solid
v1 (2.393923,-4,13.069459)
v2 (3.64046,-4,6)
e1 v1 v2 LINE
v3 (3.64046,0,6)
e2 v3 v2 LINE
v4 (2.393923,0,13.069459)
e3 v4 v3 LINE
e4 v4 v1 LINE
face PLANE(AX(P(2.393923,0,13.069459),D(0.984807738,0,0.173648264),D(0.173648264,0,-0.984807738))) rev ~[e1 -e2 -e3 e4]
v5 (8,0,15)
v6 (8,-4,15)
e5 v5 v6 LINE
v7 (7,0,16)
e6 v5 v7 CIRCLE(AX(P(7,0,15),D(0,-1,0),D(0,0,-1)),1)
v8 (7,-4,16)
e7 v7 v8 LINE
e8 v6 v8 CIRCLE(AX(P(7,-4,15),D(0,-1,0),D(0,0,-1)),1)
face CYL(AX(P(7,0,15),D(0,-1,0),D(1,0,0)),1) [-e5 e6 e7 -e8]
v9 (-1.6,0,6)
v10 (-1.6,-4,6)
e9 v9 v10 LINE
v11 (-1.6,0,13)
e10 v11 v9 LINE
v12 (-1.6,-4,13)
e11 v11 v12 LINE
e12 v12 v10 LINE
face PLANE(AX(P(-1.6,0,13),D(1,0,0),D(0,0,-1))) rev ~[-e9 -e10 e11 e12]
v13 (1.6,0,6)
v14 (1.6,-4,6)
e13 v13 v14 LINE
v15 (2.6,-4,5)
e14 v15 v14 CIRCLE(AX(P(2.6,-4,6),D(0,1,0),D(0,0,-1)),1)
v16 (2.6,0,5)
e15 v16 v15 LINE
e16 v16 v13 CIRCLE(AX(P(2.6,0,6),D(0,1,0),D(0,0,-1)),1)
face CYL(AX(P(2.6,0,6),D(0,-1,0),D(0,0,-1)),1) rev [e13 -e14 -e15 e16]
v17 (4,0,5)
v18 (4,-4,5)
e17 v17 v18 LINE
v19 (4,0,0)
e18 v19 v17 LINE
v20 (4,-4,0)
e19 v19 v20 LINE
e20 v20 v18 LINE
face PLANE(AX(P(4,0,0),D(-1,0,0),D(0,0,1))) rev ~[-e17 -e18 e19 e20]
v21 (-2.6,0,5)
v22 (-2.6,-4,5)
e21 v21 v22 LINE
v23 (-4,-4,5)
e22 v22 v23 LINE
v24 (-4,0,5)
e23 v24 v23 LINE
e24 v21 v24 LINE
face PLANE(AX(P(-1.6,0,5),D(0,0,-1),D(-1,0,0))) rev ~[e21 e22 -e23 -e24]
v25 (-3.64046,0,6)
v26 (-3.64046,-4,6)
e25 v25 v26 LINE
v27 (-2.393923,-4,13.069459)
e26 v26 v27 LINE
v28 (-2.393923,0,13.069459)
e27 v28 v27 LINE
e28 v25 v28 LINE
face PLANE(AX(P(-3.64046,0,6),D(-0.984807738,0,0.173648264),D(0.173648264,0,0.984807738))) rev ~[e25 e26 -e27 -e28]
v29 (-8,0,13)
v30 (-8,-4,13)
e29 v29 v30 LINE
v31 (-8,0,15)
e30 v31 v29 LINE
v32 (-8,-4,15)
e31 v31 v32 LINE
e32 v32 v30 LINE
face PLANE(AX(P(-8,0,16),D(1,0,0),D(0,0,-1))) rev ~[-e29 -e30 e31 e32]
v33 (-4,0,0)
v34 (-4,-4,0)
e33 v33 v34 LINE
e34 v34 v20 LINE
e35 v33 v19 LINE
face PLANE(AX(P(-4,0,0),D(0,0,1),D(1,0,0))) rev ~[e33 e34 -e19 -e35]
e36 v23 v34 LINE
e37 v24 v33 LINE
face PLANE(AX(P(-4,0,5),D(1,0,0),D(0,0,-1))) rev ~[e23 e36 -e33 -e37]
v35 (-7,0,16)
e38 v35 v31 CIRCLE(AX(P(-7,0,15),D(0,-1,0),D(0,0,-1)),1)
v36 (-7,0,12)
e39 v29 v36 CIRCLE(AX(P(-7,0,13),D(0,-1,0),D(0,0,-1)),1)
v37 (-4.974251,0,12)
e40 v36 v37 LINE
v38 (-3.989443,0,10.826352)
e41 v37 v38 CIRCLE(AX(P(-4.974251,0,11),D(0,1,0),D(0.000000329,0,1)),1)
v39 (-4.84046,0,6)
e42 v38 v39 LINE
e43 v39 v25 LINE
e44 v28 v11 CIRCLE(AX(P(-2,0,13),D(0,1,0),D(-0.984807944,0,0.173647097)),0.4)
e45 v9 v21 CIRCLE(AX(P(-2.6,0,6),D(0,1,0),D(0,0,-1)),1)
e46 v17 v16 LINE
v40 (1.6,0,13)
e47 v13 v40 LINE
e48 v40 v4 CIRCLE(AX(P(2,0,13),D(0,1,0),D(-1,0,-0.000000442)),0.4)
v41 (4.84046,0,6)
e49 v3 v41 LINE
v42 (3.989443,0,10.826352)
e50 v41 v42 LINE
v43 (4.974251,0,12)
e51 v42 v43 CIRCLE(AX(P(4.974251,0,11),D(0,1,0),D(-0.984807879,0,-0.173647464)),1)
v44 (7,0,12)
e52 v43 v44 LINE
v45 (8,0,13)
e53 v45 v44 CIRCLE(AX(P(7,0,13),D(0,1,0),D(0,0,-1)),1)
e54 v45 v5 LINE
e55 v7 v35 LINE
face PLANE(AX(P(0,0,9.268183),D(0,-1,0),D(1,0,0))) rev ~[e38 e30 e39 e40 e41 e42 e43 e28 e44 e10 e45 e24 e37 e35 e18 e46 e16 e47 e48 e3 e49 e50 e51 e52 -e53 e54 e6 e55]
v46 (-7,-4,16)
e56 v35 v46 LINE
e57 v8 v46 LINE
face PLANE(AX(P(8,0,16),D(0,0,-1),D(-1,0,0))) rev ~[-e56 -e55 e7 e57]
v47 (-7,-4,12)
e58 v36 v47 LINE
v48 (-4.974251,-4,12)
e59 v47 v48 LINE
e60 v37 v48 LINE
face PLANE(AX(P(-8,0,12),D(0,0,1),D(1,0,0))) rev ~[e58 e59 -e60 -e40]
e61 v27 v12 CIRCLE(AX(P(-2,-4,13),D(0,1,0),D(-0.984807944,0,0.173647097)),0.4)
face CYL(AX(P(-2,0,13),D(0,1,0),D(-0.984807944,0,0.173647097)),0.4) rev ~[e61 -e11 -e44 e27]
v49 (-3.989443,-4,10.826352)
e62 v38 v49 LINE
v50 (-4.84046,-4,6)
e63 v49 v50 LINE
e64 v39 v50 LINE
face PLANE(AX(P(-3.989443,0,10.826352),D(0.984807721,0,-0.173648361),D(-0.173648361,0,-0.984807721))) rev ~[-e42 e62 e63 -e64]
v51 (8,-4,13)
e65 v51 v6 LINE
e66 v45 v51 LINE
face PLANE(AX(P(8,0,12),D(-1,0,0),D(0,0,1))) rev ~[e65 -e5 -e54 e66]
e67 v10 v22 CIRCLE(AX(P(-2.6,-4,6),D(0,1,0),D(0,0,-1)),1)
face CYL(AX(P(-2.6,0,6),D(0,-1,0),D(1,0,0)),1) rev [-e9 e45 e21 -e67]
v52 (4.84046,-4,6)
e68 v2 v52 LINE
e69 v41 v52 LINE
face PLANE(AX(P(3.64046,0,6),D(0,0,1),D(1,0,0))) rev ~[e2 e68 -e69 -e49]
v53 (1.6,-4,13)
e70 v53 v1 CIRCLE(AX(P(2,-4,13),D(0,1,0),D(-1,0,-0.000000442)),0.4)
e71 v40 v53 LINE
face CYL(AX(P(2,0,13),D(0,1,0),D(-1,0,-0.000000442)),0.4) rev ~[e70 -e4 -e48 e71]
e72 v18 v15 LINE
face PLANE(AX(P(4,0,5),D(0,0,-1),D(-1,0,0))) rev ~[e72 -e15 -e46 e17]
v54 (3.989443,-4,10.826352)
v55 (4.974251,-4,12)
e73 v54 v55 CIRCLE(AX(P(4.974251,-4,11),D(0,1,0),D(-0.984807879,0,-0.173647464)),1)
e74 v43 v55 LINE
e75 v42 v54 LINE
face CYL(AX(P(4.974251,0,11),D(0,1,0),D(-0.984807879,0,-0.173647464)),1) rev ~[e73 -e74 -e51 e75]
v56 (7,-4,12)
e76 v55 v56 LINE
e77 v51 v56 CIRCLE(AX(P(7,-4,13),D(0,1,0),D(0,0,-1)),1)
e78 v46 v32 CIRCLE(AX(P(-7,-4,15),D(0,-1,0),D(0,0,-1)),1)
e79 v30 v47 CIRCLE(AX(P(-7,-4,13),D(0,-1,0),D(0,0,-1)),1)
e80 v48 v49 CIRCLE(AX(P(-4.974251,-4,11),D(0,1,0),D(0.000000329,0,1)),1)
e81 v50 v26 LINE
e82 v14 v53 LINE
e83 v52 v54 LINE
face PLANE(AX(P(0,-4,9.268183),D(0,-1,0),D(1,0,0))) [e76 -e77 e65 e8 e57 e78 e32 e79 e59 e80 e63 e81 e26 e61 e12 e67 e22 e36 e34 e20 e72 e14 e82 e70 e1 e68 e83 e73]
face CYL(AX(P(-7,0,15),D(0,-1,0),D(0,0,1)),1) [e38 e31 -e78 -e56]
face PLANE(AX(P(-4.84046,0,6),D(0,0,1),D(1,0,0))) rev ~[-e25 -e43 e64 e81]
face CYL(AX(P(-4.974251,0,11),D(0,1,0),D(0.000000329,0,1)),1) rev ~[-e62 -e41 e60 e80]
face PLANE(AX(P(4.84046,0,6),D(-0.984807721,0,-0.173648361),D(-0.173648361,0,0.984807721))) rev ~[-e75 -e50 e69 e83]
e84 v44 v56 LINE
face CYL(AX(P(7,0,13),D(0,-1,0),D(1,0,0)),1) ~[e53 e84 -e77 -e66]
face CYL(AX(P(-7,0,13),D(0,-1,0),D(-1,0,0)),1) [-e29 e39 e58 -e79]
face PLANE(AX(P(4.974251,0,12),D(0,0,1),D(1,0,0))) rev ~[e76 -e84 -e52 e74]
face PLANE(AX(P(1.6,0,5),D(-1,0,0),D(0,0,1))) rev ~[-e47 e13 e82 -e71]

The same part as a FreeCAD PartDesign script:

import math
import FreeCAD as App
import Part
import Sketcher
Q = App.Units.Quantity


def edges_at(feature, points):
    """Names of the edges that pass closest to the given points."""
    edges = feature.Shape.Edges
    near = lambda p: min(range(len(edges)), key=lambda i: edges[i].distToShape(Part.Vertex(*p))[0])
    return sorted({f"Edge{near(p) + 1}" for p in points})

doc = App.newDocument("Part")
body = doc.addObject("PartDesign::Body", "Body")

sketch1 = body.newObject("Sketcher::SketchObject", "Sketch")
sketch1.AttachmentSupport = (doc.getObject("XZ_Plane"), [""])
sketch1.MapMode = "FlatFace"
sketch1.addGeometry(Part.LineSegment(App.Vector(8, 12, 0), App.Vector(8, 16, 0)), False)
sketch1.addGeometry(Part.LineSegment(App.Vector(8, 16, 0), App.Vector(-8, 16, 0)), False)
sketch1.addGeometry(Part.LineSegment(App.Vector(-8, 16, 0), App.Vector(-8, 12, 0)), False)
sketch1.addGeometry(Part.LineSegment(App.Vector(-8, 12, 0), App.Vector(-4.97, 12, 0)), False)
sketch1.addGeometry(Part.ArcOfCircle(Part.Circle(App.Vector(-4.97, 11, 0), App.Vector(0, 0, 1), 1), math.radians(-10), math.radians(90)), False)
sketch1.addGeometry(Part.LineSegment(App.Vector(-3.99, 10.83, 0), App.Vector(-4.84, 6, 0)), False)
sketch1.addGeometry(Part.LineSegment(App.Vector(-4.84, 6, 0), App.Vector(-3.64, 6, 0)), False)
sketch1.addGeometry(Part.LineSegment(App.Vector(-3.64, 6, 0), App.Vector(-2.39, 13.07, 0)), False)
sketch1.addGeometry(Part.ArcOfCircle(Part.Circle(App.Vector(-2, 13, 0), App.Vector(0, 0, 1), 0.4), math.radians(0), math.radians(170)), False)
sketch1.addGeometry(Part.LineSegment(App.Vector(-1.6, 13, 0), App.Vector(-1.6, 5, 0)), False)
sketch1.addGeometry(Part.LineSegment(App.Vector(-1.6, 5, 0), App.Vector(-4, 5, 0)), False)
sketch1.addGeometry(Part.LineSegment(App.Vector(-4, 5, 0), App.Vector(-4, 0, 0)), False)
sketch1.addGeometry(Part.LineSegment(App.Vector(-4, 0, 0), App.Vector(4, 0, 0)), False)
sketch1.addGeometry(Part.LineSegment(App.Vector(4, 0, 0), App.Vector(4, 5, 0)), False)
sketch1.addGeometry(Part.LineSegment(App.Vector(4, 5, 0), App.Vector(1.6, 5, 0)), False)
sketch1.addGeometry(Part.LineSegment(App.Vector(1.6, 5, 0), App.Vector(1.6, 13, 0)), False)
sketch1.addGeometry(Part.ArcOfCircle(Part.Circle(App.Vector(2, 13, 0), App.Vector(0, 0, 1), 0.4), math.radians(10), math.radians(180)), False)
sketch1.addGeometry(Part.LineSegment(App.Vector(2.39, 13.07, 0), App.Vector(3.64, 6, 0)), False)
sketch1.addGeometry(Part.LineSegment(App.Vector(3.64, 6, 0), App.Vector(4.84, 6, 0)), False)
sketch1.addGeometry(Part.LineSegment(App.Vector(4.84, 6, 0), App.Vector(3.99, 10.83, 0)), False)
sketch1.addGeometry(Part.ArcOfCircle(Part.Circle(App.Vector(4.97, 11, 0), App.Vector(0, 0, 1), 1), math.radians(90), math.radians(190)), False)
sketch1.addGeometry(Part.LineSegment(App.Vector(4.97, 12, 0), App.Vector(8, 12, 0)), False)
sketch1.addConstraint(Sketcher.Constraint("Coincident", 0, 2, 1, 1))
sketch1.addConstraint(Sketcher.Constraint("Coincident", 1, 2, 2, 1))
sketch1.addConstraint(Sketcher.Constraint("Coincident", 2, 2, 3, 1))
sketch1.addConstraint(Sketcher.Constraint("Tangent", 3, 2, 4, 2))
sketch1.addConstraint(Sketcher.Constraint("Tangent", 4, 1, 5, 1))
sketch1.addConstraint(Sketcher.Constraint("Coincident", 5, 2, 6, 1))
sketch1.addConstraint(Sketcher.Constraint("Coincident", 6, 2, 7, 1))
sketch1.addConstraint(Sketcher.Constraint("Tangent", 7, 2, 8, 2))
sketch1.addConstraint(Sketcher.Constraint("Tangent", 8, 1, 9, 1))
sketch1.addConstraint(Sketcher.Constraint("Coincident", 9, 2, 10, 1))
sketch1.addConstraint(Sketcher.Constraint("Coincident", 10, 2, 11, 1))
sketch1.addConstraint(Sketcher.Constraint("Coincident", 11, 2, 12, 1))
sketch1.addConstraint(Sketcher.Constraint("Coincident", 12, 2, 13, 1))
sketch1.addConstraint(Sketcher.Constraint("Coincident", 13, 2, 14, 1))
sketch1.addConstraint(Sketcher.Constraint("Coincident", 14, 2, 15, 1))
sketch1.addConstraint(Sketcher.Constraint("Tangent", 15, 2, 16, 2))
sketch1.addConstraint(Sketcher.Constraint("Tangent", 16, 1, 17, 1))
sketch1.addConstraint(Sketcher.Constraint("Coincident", 17, 2, 18, 1))
sketch1.addConstraint(Sketcher.Constraint("Coincident", 18, 2, 19, 1))
sketch1.addConstraint(Sketcher.Constraint("Tangent", 19, 2, 20, 2))
sketch1.addConstraint(Sketcher.Constraint("Tangent", 20, 1, 21, 1))
sketch1.addConstraint(Sketcher.Constraint("Coincident", 21, 2, 0, 1))
sketch1.addConstraint(Sketcher.Constraint("Vertical", 0))
sketch1.addConstraint(Sketcher.Constraint("Horizontal", 1))
sketch1.addConstraint(Sketcher.Constraint("Vertical", 2))
sketch1.addConstraint(Sketcher.Constraint("Horizontal", 3))
sketch1.addConstraint(Sketcher.Constraint("Horizontal", 6))
sketch1.addConstraint(Sketcher.Constraint("Vertical", 9))
sketch1.addConstraint(Sketcher.Constraint("Horizontal", 10))
sketch1.addConstraint(Sketcher.Constraint("Vertical", 11))
sketch1.addConstraint(Sketcher.Constraint("Horizontal", 12))
sketch1.addConstraint(Sketcher.Constraint("Vertical", 13))
sketch1.addConstraint(Sketcher.Constraint("Horizontal", 14))
sketch1.addConstraint(Sketcher.Constraint("Vertical", 15))
sketch1.addConstraint(Sketcher.Constraint("Horizontal", 18))
sketch1.addConstraint(Sketcher.Constraint("Horizontal", 21))
sketch1.addConstraint(Sketcher.Constraint("Equal", 8, 16))
sketch1.addConstraint(Sketcher.Constraint("Equal", 4, 20))
sketch1.addConstraint(Sketcher.Constraint("Symmetric", 11, 2, 12, 2, -1, 1))
sketch1.addConstraint(Sketcher.Constraint("Symmetric", 8, 3, 16, 3, -2))
sketch1.addConstraint(Sketcher.Constraint("Symmetric", 4, 3, 20, 3, -2))
sketch1.addConstraint(Sketcher.Constraint("Symmetric", 6, 2, 17, 2, -2))
sketch1.addConstraint(Sketcher.Constraint("Parallel", 5, 7))
sketch1.addConstraint(Sketcher.Constraint("Parallel", 17, 19))
sketch1.addConstraint(Sketcher.Constraint("Horizontal", 10, 2, 13, 2))
sketch1.addConstraint(Sketcher.Constraint("Equal", 3, 21))
sketch1.addConstraint(Sketcher.Constraint("Equal", 12, 9))
sketch1.addConstraint(Sketcher.Constraint("Radius", 4, 1.0))
sketch1.addConstraint(Sketcher.Constraint("Radius", 8, 0.4))
sketch1.addConstraint(Sketcher.Constraint("DistanceX", 1, 2, 1, 1, 16.0))
sketch1.addConstraint(Sketcher.Constraint("DistanceX", 12, 1, 12, 2, 8.0))
sketch1.addConstraint(Sketcher.Constraint("DistanceY", 0, 1, 0, 2, 4.0))
sketch1.addConstraint(Sketcher.Constraint("DistanceY", 11, 2, 11, 1, 5.0))
sketch1.addConstraint(Sketcher.Constraint("Angle", 5, Q("-100.000011 deg")))
sketch1.addConstraint(Sketcher.Constraint("DistanceX", 6, 1, 6, 2, 1.2))
sketch1.addConstraint(Sketcher.Constraint("DistanceX", 10, 2, 10, 1, 2.4))
sketch1.addConstraint(Sketcher.Constraint("DistanceY", -1, 1, 4, 3, 11.0))
sketch1.addConstraint(Sketcher.Constraint("DistanceY", -1, 1, 5, 2, 6.0))
pad1 = body.newObject("PartDesign::Pad", "Pad")
pad1.Profile = sketch1
pad1.Length = 4
doc.recompute()

fillet = body.newObject("PartDesign::Fillet", "Fillet")
fillet.Base = (pad1, edges_at(pad1, [
    (8, -2, 12),
    (8, -2, 16),
    (-8, -2, 12),
    (-8, -2, 16),
    (1.6, -2, 5),
    (-1.6, -2, 5),
]))
fillet.Radius = 1

doc.recompute()
